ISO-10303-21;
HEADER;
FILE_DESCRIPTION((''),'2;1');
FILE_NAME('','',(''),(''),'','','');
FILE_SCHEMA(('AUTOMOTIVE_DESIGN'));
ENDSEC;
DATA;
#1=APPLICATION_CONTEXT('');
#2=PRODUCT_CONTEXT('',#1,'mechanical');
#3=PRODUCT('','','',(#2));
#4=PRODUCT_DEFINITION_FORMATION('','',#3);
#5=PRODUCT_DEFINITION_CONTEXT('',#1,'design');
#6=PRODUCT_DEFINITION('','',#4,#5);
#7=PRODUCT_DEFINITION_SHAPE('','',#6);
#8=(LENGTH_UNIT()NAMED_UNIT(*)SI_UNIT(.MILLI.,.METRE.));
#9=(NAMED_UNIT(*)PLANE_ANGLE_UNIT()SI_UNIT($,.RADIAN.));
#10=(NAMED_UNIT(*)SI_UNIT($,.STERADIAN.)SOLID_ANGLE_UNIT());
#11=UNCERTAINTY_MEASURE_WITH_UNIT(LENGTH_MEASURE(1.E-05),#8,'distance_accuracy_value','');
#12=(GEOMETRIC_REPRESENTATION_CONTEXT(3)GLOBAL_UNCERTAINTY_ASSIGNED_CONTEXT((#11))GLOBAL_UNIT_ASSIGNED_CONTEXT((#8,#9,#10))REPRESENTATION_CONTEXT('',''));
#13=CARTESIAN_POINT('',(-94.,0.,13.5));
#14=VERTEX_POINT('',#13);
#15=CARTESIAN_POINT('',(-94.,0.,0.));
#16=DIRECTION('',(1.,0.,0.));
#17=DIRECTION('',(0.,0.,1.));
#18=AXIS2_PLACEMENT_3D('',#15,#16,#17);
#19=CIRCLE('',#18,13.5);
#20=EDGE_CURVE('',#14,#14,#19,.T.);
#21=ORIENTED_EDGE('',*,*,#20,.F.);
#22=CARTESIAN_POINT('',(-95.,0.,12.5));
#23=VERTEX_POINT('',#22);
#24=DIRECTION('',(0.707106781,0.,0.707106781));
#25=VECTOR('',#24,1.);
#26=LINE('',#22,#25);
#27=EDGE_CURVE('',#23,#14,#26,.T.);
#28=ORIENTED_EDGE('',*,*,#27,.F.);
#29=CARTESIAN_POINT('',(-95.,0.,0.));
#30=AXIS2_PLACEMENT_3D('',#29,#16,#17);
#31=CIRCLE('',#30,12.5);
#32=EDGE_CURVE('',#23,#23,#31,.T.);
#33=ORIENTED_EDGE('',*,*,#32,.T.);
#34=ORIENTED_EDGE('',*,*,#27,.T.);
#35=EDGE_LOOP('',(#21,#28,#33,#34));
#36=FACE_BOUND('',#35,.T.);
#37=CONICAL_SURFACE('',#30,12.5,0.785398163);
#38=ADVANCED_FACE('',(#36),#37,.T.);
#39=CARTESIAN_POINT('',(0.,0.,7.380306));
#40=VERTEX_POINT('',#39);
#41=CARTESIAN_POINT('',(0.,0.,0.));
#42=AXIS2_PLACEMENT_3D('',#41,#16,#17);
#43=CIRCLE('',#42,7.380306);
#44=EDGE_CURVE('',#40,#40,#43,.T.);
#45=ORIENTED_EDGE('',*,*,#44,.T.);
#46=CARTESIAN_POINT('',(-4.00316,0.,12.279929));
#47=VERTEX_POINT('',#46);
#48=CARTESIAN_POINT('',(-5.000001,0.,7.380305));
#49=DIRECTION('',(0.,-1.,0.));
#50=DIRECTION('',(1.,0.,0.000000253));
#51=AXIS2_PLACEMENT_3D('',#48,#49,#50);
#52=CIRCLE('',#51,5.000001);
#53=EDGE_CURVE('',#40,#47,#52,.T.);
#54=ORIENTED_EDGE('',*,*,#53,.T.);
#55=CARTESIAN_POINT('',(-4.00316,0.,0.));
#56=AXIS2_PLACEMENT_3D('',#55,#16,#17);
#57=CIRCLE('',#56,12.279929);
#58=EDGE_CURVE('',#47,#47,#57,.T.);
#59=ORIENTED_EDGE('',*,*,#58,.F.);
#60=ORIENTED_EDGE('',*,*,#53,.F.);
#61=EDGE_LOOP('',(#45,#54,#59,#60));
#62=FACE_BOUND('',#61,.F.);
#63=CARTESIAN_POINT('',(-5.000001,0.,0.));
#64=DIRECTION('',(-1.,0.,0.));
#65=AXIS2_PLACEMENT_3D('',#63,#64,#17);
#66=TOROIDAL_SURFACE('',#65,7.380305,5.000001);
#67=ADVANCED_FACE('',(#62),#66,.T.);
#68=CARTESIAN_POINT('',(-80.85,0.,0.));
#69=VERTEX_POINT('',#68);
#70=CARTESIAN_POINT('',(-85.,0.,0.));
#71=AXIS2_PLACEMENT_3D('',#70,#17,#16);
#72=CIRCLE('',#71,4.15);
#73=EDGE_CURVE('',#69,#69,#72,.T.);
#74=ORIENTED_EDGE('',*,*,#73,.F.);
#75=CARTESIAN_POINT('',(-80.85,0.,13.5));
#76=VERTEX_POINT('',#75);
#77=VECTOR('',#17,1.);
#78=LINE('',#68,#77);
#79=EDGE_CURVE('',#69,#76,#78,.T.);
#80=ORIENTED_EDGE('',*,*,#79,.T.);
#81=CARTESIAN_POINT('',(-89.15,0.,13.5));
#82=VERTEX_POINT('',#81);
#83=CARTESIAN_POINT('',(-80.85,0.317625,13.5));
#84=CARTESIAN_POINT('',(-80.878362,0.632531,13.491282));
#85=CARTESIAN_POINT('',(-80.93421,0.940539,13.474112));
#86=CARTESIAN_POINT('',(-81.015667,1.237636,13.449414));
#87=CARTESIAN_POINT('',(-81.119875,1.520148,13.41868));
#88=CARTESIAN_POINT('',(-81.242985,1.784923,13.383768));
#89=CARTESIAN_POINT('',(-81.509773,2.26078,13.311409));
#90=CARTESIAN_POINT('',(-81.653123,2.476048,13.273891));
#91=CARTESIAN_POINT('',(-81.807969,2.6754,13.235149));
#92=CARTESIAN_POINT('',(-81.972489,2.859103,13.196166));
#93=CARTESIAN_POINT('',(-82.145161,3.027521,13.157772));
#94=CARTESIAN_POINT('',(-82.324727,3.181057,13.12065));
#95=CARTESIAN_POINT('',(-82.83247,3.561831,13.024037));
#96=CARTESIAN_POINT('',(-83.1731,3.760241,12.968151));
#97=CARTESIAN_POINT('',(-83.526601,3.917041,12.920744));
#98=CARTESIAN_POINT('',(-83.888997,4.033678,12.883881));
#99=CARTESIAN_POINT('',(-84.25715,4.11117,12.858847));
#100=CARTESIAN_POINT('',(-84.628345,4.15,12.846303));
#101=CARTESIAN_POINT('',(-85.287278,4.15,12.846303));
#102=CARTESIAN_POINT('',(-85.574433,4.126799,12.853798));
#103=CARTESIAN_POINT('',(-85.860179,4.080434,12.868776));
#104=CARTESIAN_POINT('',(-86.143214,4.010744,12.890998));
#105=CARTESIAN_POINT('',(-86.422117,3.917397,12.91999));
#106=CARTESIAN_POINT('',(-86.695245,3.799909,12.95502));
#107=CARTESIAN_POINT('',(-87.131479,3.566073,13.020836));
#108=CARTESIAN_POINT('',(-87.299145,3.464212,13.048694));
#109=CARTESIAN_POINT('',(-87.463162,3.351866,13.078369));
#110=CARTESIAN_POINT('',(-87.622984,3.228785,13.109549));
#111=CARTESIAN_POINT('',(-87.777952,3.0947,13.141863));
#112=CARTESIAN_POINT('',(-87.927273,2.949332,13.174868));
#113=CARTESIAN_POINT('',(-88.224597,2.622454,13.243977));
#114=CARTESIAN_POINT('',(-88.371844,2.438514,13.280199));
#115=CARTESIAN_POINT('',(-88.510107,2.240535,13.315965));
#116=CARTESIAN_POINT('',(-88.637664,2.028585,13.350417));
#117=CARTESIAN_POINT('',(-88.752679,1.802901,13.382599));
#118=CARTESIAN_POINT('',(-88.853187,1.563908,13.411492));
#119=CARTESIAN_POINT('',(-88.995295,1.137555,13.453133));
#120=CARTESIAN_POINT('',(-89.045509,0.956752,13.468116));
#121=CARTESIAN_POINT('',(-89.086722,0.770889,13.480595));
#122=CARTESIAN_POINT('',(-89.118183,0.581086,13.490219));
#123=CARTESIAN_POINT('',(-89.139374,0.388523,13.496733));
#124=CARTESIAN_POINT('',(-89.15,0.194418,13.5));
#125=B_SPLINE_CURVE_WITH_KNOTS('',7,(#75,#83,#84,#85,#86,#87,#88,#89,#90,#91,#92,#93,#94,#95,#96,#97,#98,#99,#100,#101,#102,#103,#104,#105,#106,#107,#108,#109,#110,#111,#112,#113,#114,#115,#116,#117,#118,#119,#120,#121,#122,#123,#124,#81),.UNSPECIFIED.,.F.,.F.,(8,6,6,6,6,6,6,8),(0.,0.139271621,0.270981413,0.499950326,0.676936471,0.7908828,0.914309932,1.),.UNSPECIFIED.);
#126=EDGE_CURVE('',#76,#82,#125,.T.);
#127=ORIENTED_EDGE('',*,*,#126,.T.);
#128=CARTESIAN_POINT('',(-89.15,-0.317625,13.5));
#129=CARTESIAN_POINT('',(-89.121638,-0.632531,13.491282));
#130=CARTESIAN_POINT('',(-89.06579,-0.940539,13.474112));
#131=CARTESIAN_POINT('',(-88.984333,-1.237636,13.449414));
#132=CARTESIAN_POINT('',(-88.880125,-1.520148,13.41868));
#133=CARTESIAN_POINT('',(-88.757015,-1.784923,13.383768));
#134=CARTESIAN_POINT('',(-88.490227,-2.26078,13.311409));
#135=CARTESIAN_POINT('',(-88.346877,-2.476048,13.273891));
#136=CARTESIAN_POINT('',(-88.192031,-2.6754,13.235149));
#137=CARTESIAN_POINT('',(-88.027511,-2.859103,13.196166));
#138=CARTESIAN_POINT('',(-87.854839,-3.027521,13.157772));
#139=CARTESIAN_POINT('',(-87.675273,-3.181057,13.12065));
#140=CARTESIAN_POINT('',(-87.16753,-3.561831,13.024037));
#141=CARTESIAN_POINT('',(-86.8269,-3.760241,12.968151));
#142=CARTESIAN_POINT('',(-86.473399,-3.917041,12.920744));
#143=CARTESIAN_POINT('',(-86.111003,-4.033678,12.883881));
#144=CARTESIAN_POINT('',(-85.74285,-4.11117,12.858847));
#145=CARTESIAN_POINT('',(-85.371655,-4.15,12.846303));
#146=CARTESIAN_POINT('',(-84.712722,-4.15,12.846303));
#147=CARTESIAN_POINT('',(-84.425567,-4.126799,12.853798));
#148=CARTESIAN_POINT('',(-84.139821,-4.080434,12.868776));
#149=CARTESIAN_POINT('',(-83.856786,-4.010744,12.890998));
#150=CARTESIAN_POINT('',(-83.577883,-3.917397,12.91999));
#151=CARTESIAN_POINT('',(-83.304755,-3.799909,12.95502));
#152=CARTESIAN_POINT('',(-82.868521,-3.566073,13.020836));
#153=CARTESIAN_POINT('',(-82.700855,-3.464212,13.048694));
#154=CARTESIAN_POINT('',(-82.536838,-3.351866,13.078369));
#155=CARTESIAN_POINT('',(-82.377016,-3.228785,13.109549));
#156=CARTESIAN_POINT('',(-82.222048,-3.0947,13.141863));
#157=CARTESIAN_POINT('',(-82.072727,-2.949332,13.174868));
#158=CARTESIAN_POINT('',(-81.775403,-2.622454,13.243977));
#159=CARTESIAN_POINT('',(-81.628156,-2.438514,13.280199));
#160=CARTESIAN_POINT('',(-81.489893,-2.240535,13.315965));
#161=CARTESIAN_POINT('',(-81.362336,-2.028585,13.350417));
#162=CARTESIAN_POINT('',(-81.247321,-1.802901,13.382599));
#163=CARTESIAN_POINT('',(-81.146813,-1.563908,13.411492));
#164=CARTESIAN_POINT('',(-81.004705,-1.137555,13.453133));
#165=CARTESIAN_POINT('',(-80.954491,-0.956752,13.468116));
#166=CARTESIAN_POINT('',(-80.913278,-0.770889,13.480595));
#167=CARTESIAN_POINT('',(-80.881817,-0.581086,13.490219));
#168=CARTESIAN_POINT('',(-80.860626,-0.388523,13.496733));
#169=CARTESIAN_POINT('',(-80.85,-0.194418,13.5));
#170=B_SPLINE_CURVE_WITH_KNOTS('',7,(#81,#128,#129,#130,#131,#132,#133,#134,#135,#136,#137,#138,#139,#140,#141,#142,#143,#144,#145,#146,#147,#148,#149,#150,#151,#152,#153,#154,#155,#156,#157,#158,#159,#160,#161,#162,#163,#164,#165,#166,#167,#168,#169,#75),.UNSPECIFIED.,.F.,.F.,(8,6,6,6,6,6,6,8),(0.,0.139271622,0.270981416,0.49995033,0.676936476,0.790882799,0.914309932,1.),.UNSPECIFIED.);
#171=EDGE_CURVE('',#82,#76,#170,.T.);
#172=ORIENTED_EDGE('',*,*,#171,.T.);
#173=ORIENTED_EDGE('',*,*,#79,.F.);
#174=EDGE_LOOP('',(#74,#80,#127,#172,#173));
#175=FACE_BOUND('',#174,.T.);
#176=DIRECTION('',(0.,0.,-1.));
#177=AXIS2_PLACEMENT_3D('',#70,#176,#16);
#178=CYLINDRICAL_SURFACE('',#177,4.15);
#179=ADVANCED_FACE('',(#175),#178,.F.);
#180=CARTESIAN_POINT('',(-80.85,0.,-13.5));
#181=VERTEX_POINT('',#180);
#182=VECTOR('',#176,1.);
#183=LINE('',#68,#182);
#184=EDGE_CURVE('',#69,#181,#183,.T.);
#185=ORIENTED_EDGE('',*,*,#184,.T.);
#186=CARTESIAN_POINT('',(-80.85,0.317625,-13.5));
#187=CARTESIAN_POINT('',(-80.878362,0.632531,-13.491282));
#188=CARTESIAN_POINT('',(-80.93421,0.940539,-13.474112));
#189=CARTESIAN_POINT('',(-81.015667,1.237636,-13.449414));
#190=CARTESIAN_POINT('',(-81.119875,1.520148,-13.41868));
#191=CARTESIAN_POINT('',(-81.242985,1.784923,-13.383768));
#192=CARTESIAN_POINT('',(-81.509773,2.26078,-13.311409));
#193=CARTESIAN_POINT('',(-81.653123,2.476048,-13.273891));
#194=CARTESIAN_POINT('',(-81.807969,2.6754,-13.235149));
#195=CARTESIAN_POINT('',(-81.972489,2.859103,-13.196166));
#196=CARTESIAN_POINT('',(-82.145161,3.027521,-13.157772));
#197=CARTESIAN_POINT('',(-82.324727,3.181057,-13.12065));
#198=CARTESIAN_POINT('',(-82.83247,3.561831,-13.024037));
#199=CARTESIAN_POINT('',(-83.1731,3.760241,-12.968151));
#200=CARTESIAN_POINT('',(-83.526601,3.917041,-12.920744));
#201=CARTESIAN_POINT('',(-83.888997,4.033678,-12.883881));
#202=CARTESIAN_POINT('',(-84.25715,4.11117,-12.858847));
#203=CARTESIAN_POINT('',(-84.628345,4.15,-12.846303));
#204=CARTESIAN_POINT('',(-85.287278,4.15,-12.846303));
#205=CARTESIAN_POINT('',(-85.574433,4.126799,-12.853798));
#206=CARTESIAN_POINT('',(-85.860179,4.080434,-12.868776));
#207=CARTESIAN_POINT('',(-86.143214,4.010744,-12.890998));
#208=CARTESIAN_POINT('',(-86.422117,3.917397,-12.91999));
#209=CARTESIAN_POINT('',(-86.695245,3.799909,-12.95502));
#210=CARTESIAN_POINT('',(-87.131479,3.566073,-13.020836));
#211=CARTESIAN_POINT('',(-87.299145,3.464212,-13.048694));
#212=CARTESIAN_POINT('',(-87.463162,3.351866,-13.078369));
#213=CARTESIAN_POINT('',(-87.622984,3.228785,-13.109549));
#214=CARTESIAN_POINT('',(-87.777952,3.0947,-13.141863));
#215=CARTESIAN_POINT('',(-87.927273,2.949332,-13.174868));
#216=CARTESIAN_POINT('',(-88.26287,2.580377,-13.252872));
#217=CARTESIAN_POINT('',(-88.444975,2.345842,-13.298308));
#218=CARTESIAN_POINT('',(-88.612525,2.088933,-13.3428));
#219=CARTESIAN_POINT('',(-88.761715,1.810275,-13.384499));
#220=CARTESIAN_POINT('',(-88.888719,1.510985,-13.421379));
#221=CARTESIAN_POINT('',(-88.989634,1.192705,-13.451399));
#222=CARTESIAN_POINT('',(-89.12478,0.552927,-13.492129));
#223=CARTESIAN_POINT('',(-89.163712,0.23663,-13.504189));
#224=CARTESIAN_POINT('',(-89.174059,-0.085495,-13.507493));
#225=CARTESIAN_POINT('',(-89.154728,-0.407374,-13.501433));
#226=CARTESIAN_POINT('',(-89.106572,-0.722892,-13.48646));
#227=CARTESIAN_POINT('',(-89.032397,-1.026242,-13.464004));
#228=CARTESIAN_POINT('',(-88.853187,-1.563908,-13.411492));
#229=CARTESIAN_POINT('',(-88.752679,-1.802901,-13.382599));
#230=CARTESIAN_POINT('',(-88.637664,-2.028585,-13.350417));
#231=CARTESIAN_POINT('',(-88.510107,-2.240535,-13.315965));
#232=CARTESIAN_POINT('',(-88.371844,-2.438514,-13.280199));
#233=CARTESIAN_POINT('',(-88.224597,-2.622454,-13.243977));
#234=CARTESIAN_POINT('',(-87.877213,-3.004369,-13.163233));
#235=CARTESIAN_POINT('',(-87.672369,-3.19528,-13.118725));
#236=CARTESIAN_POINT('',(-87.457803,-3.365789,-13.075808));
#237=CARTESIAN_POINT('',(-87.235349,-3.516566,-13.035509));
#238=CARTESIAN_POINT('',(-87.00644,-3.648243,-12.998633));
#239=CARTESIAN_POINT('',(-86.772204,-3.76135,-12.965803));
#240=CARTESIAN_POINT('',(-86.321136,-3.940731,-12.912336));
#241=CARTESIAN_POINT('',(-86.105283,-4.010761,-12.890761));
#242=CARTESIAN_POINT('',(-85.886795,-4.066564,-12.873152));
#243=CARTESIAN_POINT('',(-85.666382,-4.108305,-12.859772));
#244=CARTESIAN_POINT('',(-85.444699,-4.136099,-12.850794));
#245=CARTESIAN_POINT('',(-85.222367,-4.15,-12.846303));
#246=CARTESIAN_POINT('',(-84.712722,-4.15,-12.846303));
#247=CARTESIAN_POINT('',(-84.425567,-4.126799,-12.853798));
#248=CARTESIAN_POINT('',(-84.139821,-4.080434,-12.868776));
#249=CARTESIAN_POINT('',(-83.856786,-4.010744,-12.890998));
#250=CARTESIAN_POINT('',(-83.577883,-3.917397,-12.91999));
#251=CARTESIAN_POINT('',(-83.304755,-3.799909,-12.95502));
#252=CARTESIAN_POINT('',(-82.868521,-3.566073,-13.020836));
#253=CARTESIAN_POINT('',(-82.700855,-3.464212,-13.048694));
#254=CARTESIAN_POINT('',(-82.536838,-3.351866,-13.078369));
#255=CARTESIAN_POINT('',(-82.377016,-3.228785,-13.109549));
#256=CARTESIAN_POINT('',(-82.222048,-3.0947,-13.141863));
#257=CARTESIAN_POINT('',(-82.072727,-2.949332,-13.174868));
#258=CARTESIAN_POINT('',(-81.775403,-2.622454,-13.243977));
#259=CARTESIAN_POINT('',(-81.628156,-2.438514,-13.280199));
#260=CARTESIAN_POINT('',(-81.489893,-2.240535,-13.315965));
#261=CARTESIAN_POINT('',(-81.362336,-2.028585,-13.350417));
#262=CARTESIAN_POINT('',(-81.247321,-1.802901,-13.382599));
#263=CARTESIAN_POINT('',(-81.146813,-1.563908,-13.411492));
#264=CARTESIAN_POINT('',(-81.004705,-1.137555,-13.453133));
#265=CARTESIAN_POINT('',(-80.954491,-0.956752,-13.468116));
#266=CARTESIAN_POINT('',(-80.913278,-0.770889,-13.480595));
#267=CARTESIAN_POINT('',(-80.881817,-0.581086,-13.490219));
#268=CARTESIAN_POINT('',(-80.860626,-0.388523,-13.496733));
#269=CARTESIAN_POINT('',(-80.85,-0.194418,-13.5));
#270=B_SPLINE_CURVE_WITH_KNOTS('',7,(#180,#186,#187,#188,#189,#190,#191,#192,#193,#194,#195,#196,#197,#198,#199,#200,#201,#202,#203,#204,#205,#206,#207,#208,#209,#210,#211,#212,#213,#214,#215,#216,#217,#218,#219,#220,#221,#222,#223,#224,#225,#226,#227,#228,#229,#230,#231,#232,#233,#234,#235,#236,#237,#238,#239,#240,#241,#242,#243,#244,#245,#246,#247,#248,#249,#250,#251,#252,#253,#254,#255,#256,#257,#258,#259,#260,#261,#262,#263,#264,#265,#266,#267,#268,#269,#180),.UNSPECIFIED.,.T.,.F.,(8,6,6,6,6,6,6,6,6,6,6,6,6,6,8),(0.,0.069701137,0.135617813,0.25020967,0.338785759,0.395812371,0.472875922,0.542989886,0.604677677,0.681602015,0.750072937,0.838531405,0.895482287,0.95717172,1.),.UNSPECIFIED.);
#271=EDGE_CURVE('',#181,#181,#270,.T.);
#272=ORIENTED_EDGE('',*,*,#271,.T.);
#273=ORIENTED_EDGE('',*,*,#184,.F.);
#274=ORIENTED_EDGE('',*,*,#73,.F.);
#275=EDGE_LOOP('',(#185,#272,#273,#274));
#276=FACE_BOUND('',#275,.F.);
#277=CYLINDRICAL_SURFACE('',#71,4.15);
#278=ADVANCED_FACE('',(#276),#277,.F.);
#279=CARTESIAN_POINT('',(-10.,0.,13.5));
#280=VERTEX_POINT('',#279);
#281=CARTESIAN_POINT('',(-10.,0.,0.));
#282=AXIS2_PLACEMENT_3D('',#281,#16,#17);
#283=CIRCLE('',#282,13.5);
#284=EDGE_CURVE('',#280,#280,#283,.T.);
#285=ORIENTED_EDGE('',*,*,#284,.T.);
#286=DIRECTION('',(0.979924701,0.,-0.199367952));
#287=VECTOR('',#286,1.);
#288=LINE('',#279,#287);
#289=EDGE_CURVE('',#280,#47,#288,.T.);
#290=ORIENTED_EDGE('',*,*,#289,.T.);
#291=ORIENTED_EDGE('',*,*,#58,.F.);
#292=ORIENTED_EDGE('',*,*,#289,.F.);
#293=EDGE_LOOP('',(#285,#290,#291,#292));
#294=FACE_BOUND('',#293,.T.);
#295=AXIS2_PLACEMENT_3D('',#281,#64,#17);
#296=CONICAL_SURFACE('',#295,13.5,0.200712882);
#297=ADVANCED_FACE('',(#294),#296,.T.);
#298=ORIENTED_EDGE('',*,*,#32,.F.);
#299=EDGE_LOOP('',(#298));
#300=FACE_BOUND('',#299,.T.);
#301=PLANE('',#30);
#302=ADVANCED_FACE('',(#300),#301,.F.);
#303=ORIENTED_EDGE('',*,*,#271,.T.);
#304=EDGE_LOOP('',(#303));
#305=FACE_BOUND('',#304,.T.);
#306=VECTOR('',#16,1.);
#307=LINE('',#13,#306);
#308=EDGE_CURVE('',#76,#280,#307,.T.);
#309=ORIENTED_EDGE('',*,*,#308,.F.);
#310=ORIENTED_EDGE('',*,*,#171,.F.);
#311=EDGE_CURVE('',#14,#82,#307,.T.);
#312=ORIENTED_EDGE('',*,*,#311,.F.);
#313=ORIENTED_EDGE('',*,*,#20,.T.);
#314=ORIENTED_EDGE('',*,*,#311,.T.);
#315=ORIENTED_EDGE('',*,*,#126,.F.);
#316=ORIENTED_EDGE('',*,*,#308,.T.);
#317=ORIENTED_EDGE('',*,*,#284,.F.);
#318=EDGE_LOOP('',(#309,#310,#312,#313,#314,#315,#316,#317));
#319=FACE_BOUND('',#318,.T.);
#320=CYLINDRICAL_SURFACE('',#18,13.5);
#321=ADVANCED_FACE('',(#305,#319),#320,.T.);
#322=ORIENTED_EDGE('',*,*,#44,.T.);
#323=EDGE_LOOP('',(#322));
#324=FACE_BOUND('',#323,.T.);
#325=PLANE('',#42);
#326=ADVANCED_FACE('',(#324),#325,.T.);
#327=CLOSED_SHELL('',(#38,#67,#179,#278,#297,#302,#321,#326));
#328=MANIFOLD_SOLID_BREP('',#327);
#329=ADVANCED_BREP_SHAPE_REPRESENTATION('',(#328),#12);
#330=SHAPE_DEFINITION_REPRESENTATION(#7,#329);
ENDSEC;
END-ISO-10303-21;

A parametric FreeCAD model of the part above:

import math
import FreeCAD as App
import Part
import Sketcher

V = App.Vector
Q = App.Units.Quantity

doc = App.newDocument("Part")
body = doc.addObject("PartDesign::Body", "Body")

# Sketch on XZ plane
sketch1 = body.newObject("Sketcher::SketchObject", "Sketch")
sketch1.AttachmentSupport = (doc.getObject("XZ_Plane"), [""])
sketch1.MapMode = "FlatFace"
sketch1.addGeometry([
    Part.LineSegment(V(-95, 12.5, 0), V(-95, 0, 0)),  # 0
    Part.LineSegment(V(-95, 0, 0), V(0, 0, 0)),  # 1
    Part.LineSegment(V(0, 0, 0), V(0, 7.4, 0)),  # 2
    Part.ArcOfCircle(Part.Circle(V(-5, 7.4, 0), V(0, 0, 1), 5), math.radians(0), math.radians(78)),  # 3
    Part.LineSegment(V(-4, 12.3, 0), V(-10, 13.5, 0)),  # 4
    Part.LineSegment(V(-10, 13.5, 0), V(-94, 13.5, 0)),  # 5
    Part.LineSegment(V(-94, 13.5, 0), V(-95, 12.5, 0)),  # 6
], False)
sketch1.addConstraint([
    Sketcher.Constraint("Coincident", 0, 2, 1, 1),
    Sketcher.Constraint("Coincident", 1, 2, 2, 1),
    Sketcher.Constraint("Tangent", 2, 2, 3, 1),
    Sketcher.Constraint("Tangent", 3, 2, 4, 1),
    Sketcher.Constraint("Coincident", 4, 2, 5, 1),
    Sketcher.Constraint("Coincident", 5, 2, 6, 1),
    Sketcher.Constraint("Coincident", 6, 2, 0, 1),
    Sketcher.Constraint("Vertical", 0),
    Sketcher.Constraint("Horizontal", 1),
    Sketcher.Constraint("Vertical", 2),
    Sketcher.Constraint("Horizontal", 5),
    Sketcher.Constraint("Coincident", 1, 2, -1, 1),
    Sketcher.Constraint("Radius", 3, Q("5.000001 mm")),
    Sketcher.Constraint("DistanceX", 1, 1, 1, 2, Q("95 mm")),
    Sketcher.Constraint("DistanceX", 5, 2, 5, 1, Q("84 mm")),
    Sketcher.Constraint("Angle", 6, Q("-135 deg")),
    Sketcher.Constraint("DistanceY", 0, 2, 0, 1, Q("12.5 mm")),
    Sketcher.Constraint("DistanceX", 4, 2, -1, 1, Q("10 mm")),
    Sketcher.Constraint("Angle", 4, Q("168.499999 deg")),
])
revolution = body.newObject("PartDesign::Revolution", "Revolution")
revolution.Profile = sketch1
revolution.ReferenceAxis = (sketch1, ["H_Axis"])
revolution.Angle = 360

# Sketch on XY plane
sketch2 = body.newObject("Sketcher::SketchObject", "Sketch001")
sketch2.AttachmentSupport = (doc.getObject("XY_Plane"), [""])
sketch2.MapMode = "FlatFace"
sketch2.addGeometry(Part.Circle(V(-85, 0, 0), V(0, 0, 1), 4.2), False)
sketch2.addConstraint([
    Sketcher.Constraint("PointOnObject", 0, 3, -1),
    Sketcher.Constraint("Diameter", 0, Q("8.3 mm")),
    Sketcher.Constraint("DistanceX", 0, 3, -1, 1, Q("85 mm")),
])
pocket1 = body.newObject("PartDesign::Pocket", "Pocket")
pocket1.Profile = sketch2
pocket1.Type = "ThroughAll"
pocket1.Midplane = True

doc.recompute()
